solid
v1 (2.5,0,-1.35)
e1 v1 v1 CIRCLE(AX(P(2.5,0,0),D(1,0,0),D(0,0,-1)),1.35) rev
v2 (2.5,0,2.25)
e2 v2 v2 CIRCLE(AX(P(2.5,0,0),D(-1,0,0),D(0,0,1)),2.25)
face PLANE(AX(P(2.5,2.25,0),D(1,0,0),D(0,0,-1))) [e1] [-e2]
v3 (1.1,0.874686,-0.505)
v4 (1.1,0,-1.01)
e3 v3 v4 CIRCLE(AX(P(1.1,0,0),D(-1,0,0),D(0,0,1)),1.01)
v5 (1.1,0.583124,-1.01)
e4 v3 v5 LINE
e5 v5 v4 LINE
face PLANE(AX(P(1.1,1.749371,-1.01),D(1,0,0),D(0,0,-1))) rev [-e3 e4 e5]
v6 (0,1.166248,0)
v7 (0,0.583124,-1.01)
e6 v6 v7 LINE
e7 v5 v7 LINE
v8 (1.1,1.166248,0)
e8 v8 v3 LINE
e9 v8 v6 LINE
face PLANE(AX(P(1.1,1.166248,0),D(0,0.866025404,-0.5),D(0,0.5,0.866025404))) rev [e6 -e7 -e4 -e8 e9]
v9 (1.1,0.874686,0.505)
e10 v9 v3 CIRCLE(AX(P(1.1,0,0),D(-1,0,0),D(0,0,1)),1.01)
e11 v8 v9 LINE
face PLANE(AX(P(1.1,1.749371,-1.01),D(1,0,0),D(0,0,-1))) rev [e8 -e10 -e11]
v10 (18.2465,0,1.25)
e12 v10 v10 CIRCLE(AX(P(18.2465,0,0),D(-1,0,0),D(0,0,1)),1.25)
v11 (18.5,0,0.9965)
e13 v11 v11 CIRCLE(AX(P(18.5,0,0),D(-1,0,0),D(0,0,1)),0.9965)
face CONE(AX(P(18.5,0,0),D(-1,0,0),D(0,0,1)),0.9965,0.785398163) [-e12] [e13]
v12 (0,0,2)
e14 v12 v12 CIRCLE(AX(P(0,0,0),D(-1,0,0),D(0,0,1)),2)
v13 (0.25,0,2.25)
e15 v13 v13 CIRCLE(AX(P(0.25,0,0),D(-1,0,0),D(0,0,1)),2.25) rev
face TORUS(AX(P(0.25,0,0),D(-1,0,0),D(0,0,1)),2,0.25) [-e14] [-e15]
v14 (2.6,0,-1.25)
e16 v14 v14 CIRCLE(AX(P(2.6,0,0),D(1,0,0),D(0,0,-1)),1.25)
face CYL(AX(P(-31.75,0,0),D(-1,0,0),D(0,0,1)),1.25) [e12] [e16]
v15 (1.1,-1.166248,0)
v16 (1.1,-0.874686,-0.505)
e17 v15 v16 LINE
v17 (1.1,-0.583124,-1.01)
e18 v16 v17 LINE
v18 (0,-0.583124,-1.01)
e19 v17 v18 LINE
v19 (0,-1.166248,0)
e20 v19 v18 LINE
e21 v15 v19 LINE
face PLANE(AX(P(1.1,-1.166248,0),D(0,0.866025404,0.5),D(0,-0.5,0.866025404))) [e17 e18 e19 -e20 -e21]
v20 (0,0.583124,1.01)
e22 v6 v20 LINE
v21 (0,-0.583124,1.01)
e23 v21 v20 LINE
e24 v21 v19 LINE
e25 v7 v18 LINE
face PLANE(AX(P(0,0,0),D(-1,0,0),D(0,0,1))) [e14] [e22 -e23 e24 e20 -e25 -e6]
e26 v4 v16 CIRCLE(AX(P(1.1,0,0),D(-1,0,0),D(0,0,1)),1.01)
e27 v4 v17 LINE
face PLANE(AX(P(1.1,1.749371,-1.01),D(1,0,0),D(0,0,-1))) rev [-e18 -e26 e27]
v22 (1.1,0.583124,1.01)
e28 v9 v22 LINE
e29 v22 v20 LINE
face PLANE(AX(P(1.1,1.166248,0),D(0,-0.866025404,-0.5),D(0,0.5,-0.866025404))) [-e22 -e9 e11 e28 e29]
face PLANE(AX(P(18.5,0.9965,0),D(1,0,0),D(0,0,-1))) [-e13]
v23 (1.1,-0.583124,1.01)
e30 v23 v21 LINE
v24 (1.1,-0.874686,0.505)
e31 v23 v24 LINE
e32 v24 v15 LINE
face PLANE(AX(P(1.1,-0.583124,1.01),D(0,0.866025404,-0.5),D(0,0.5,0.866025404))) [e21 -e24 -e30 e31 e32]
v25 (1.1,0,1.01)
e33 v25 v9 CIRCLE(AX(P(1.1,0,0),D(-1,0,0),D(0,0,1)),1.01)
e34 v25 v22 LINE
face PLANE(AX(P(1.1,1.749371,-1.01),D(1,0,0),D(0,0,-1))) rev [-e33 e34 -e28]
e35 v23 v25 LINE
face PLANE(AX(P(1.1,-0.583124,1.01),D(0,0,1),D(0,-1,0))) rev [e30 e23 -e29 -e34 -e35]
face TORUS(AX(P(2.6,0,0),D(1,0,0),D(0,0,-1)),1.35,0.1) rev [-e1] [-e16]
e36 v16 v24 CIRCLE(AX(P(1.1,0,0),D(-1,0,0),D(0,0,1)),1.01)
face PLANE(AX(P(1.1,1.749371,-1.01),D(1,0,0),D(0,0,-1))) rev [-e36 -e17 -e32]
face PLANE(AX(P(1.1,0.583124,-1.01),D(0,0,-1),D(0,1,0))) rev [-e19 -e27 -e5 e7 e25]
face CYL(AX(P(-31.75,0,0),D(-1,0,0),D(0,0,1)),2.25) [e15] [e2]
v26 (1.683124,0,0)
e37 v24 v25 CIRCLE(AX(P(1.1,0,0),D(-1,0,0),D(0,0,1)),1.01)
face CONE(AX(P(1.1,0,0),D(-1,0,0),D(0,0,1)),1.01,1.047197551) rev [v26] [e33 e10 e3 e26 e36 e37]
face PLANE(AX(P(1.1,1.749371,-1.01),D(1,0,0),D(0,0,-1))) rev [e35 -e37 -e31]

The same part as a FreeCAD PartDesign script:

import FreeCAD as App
import Part
import Sketcher

V = App.Vector
Q = App.Units.Quantity


def edges_at(feature, points):
    """Names of the edges that pass closest to the given points."""
    edges = feature.Shape.Edges
    near = lambda p: min(range(len(edges)), key=lambda i: edges[i].distToShape(Part.Vertex(*p))[0])
    return sorted({f"Edge{near(p) + 1}" for p in points})

doc = App.newDocument("Part")
body = doc.addObject("PartDesign::Body", "Body")

sketch1 = body.newObject("Sketcher::SketchObject", "Sketch")
sketch1.AttachmentSupport = (doc.getObject("XY_Plane"), [""])
sketch1.MapMode = "FlatFace"
sketch1.addGeometry([
    Part.LineSegment(V(0, 2.25, 0), V(0, 0, 0)),
    Part.LineSegment(V(0, 0, 0), V(18.5, 0, 0)),
    Part.LineSegment(V(18.5, 0, 0), V(18.5, 0.9965, 0)),
    Part.LineSegment(V(18.5, 0.9965, 0), V(18.2465, 1.25, 0)),
    Part.LineSegment(V(18.2465, 1.25, 0), V(2.5, 1.25, 0)),
    Part.LineSegment(V(2.5, 1.25, 0), V(2.5, 2.25, 0)),
    Part.LineSegment(V(2.5, 2.25, 0), V(0, 2.25, 0)),
], False)
sketch1.addConstraint([
    Sketcher.Constraint("Coincident", 0, 2, 1, 1),
    Sketcher.Constraint("Coincident", 1, 2, 2, 1),
    Sketcher.Constraint("Coincident", 2, 2, 3, 1),
    Sketcher.Constraint("Coincident", 3, 2, 4, 1),
    Sketcher.Constraint("Coincident", 4, 2, 5, 1),
    Sketcher.Constraint("Coincident", 5, 2, 6, 1),
    Sketcher.Constraint("Coincident", 6, 2, 0, 1),
    Sketcher.Constraint("Vertical", 0),
    Sketcher.Constraint("Horizontal", 1),
    Sketcher.Constraint("Vertical", 2),
    Sketcher.Constraint("Horizontal", 4),
    Sketcher.Constraint("Vertical", 5),
    Sketcher.Constraint("Horizontal", 6),
    Sketcher.Constraint("Coincident", 0, 2, -1, 1),
    Sketcher.Constraint("DistanceY", 5, 1, 5, 2, Q("1 mm")),
    Sketcher.Constraint("Angle", 3, Q("135 deg")),
    Sketcher.Constraint("DistanceX", 1, 1, 1, 2, Q("18.5 mm")),
    Sketcher.Constraint("DistanceX", 6, 2, 6, 1, Q("2.5 mm")),
    Sketcher.Constraint("DistanceY", 0, 2, 0, 1, Q("2.25 mm")),
    Sketcher.Constraint("DistanceX", 4, 2, 4, 1, Q("15.7465 mm")),
])
revolution = body.newObject("PartDesign::Revolution", "Revolution")
revolution.Profile = sketch1
revolution.ReferenceAxis = (sketch1, ["H_Axis"])
revolution.Angle = 360
doc.recompute()

fillet = body.newObject("PartDesign::Fillet", "Fillet")
fillet.Base = (revolution, edges_at(revolution, [(2.5, -1.25, 0)]))
fillet.Radius = 0.1
doc.recompute()

fillet2 = body.newObject("PartDesign::Fillet", "Fillet001")
fillet2.Base = (fillet, edges_at(fillet, [(0, -2.25, 0)]))
fillet2.Radius = 0.25

sketch2 = body.newObject("Sketcher::SketchObject", "Sketch001")
sketch2.AttachmentSupport = (doc.getObject("XY_Plane"), [""])
sketch2.MapMode = "FlatFace"
sketch2.addGeometry([
    Part.LineSegment(V(1.1, 1.01, 0), V(0, 1.01, 0)),
    Part.LineSegment(V(0, 1.01, 0), V(0, 0, 0)),
    Part.LineSegment(V(0, 0, 0), V(1.683124, 0, 0)),
    Part.LineSegment(V(1.683124, 0, 0), V(1.1, 1.01, 0)),
], False)
sketch2.addConstraint([
    Sketcher.Constraint("Coincident", 0, 2, 1, 1),
    Sketcher.Constraint("Coincident", 1, 2, 2, 1),
    Sketcher.Constraint("Coincident", 2, 2, 3, 1),
    Sketcher.Constraint("Coincident", 3, 2, 0, 1),
    Sketcher.Constraint("Horizontal", 0),
    Sketcher.Constraint("Vertical", 1),
    Sketcher.Constraint("Horizontal", 2),
    Sketcher.Constraint("Coincident", 1, 2, -1, 1),
    Sketcher.Constraint("Angle", 3, Q("120 deg")),
    Sketcher.Constraint("DistanceX", 0, 2, 0, 1, Q("1.1 mm")),
    Sketcher.Constraint("DistanceY", 1, 2, 1, 1, Q("1.01 mm")),
])
groove = body.newObject("PartDesign::Groove", "Groove")
groove.Profile = sketch2
groove.ReferenceAxis = (sketch2, ["H_Axis"])
groove.Angle = 360

sketch3 = body.newObject("Sketcher::SketchObject", "Sketch002")
sketch3.AttachmentSupport = (doc.getObject("YZ_Plane"), [""])
sketch3.MapMode = "FlatFace"
sketch3.addGeometry([
    Part.LineSegment(V(1.166248, 0, 0), V(0.583124, -1.01, 0)),
    Part.LineSegment(V(0.583124, -1.01, 0), V(-0.583124, -1.01, 0)),
    Part.LineSegment(V(-0.583124, -1.01, 0), V(-1.166248, 0, 0)),
    Part.LineSegment(V(-1.166248, 0, 0), V(-0.583124, 1.01, 0)),
    Part.LineSegment(V(-0.583124, 1.01, 0), V(0.583124, 1.01, 0)),
    Part.LineSegment(V(0.583124, 1.01, 0), V(1.166248, 0, 0)),
], False)
sketch3.addConstraint([
    Sketcher.Constraint("Coincident", 0, 2, 1, 1),
    Sketcher.Constraint("Coincident", 1, 2, 2, 1),
    Sketcher.Constraint("Coincident", 2, 2, 3, 1),
    Sketcher.Constraint("Coincident", 3, 2, 4, 1),
    Sketcher.Constraint("Coincident", 4, 2, 5, 1),
    Sketcher.Constraint("Coincident", 5, 2, 0, 1),
    Sketcher.Constraint("Horizontal", 1),
    Sketcher.Constraint("Horizontal", 4),
    Sketcher.Constraint("Symmetric", 0, 2, 3, 2, -1, 1),
    Sketcher.Constraint("Symmetric", 2, 2, 5, 2, -1, 1),
    Sketcher.Constraint("PointOnObject", 2, 2, -1),
    Sketcher.Constraint("Parallel", 2, 5),
    Sketcher.Constraint("Vertical", 1, 2, 3, 2),
    Sketcher.Constraint("Angle", 0, Q("-120 deg")),
    Sketcher.Constraint("DistanceY", 0, 2, -1, 1, Q("1.01 mm")),
    Sketcher.Constraint("DistanceX", 1, 2, 1, 1, Q("1.166248 mm")),
])
pocket1 = body.newObject("PartDesign::Pocket", "Pocket")
pocket1.Profile = sketch3
pocket1.Length = 1.1
pocket1.Reversed = True

doc.recompute()
